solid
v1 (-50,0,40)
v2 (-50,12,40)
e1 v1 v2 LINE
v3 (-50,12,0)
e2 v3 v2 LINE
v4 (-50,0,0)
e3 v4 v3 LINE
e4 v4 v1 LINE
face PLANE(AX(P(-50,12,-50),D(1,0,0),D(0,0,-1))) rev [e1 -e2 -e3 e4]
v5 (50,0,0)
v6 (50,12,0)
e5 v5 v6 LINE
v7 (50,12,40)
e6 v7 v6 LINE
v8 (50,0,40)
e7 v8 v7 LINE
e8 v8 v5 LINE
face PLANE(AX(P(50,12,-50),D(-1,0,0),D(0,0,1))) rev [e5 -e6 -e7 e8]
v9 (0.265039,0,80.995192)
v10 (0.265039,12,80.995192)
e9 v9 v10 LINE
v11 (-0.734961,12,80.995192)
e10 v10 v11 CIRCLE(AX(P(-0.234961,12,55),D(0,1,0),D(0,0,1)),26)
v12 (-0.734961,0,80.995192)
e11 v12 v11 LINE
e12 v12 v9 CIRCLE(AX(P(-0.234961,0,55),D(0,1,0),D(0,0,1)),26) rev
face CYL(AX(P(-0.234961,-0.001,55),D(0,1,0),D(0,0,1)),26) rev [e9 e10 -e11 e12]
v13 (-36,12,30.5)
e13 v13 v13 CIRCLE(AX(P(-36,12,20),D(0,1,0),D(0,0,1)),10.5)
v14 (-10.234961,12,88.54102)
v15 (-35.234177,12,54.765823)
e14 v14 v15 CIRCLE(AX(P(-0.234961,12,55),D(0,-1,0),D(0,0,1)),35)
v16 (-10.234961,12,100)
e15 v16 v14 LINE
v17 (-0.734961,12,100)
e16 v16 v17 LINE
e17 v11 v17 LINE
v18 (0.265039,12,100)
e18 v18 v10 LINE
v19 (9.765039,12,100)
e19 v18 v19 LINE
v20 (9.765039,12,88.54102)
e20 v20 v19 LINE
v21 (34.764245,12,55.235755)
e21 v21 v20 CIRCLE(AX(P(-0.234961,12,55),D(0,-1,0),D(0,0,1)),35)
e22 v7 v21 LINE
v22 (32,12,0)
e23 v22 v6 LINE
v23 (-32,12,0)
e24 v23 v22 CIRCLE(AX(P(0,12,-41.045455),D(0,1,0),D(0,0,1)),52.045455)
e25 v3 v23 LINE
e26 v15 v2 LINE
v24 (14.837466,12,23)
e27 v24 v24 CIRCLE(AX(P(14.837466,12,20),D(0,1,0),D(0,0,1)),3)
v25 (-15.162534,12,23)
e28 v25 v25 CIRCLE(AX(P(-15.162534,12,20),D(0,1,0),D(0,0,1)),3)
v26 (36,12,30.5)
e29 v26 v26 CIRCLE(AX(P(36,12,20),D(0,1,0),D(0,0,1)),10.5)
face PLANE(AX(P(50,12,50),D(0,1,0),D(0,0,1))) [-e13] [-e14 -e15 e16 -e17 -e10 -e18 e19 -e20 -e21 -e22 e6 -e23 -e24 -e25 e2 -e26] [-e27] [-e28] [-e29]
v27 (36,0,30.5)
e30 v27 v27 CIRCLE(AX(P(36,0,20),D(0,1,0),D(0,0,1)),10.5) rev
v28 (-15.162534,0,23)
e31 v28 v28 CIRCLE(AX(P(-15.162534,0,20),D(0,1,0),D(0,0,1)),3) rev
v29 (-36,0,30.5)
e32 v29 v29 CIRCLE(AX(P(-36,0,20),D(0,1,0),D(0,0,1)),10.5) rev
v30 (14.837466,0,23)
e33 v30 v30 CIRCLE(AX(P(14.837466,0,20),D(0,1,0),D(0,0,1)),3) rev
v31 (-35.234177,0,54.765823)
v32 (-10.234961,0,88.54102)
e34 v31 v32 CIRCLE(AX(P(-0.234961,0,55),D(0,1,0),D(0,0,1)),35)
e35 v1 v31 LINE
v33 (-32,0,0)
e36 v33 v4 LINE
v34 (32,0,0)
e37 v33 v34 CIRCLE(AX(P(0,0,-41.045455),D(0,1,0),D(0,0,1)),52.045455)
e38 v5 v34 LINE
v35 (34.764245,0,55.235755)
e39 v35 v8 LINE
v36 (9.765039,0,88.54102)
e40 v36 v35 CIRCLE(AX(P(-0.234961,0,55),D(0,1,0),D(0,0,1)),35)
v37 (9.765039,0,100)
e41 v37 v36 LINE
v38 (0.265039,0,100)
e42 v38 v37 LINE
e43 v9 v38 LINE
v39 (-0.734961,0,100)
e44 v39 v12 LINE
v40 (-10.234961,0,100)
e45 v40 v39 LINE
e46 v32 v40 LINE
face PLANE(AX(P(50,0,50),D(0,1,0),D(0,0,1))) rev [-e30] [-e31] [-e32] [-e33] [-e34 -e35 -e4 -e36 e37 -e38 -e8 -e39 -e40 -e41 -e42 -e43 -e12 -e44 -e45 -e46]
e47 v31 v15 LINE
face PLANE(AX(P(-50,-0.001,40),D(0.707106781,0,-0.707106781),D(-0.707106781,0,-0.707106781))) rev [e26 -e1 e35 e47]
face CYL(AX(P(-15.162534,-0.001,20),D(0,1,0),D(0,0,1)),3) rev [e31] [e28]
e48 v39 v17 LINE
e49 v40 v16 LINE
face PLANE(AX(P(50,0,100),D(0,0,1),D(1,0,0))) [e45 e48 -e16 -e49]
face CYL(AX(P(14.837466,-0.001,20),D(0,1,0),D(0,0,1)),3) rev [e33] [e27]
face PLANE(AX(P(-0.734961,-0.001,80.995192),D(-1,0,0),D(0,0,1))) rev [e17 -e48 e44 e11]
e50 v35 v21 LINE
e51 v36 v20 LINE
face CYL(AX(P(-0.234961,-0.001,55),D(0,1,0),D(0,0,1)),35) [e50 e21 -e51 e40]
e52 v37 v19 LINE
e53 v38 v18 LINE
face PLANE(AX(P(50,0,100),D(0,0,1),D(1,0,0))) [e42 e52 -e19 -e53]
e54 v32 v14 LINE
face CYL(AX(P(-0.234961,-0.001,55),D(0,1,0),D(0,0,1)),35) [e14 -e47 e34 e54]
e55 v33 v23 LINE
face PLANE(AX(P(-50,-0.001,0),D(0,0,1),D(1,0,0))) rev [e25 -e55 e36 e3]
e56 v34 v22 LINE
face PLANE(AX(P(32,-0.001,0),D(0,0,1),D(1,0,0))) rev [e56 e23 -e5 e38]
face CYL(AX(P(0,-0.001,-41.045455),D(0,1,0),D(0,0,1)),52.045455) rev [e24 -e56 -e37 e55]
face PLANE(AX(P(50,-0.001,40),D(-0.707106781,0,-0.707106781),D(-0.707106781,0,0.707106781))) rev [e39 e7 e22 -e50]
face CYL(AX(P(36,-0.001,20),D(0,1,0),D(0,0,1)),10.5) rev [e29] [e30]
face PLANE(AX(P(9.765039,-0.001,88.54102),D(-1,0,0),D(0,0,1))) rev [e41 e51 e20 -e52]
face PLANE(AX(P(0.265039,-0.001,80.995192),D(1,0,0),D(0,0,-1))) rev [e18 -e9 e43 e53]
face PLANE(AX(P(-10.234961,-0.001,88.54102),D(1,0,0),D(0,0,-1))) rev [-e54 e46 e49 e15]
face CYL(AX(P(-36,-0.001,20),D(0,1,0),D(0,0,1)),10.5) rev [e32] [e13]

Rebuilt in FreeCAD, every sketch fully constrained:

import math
import FreeCAD as App
import Part
import Sketcher
from FreeCAD import Vector
Q = App.Units.Quantity


def add_polygon(sketch, points):
    """Adds a closed chain of lines whose ends are joined by coincident constraints."""
    first, n = sketch.GeometryCount, len(points)
    for a, b in zip(points, points[1:] + points[:1]):
        sketch.addGeometry(Part.LineSegment(App.Vector(*a, 0), App.Vector(*b, 0)), False)
    for i in range(n):
        sketch.addConstraint(Sketcher.Constraint("Coincident", first + i, 2, first + (i + 1) % n, 1))

doc = App.newDocument("Part")
body = doc.addObject("PartDesign::Body", "Body")

sketch1 = doc.addObject("Sketcher::SketchObject", "Sketch")
body.addObject(sketch1)
sketch1.AttachmentSupport = (doc.XZ_Plane, [""])
sketch1.MapMode = "FlatFace"
add_polygon(sketch1, [(-50, -50), (-50, 50), (50, 50), (50, -50)])
sketch1.addGeometry(Part.Circle(Vector(0, 0, 0), Vector(0, 0, 1), 11), False)
sketch1.addConstraint(Sketcher.Constraint("Vertical", 0))
sketch1.addConstraint(Sketcher.Constraint("Horizontal", 1))
sketch1.addConstraint(Sketcher.Constraint("Vertical", 2))
sketch1.addConstraint(Sketcher.Constraint("Horizontal", 3))
sketch1.addConstraint(Sketcher.Constraint("Coincident", 4, 3, -1, 1))
sketch1.addConstraint(Sketcher.Constraint("Symmetric", 0, 2, 2, 2, -1, 1))
sketch1.addConstraint(Sketcher.Constraint("Equal", 3, 0))
sketch1.addConstraint(Sketcher.Constraint("Diameter", 4, Q("22 mm")))
sketch1.addConstraint(Sketcher.Constraint("DistanceX", 1, 1, 1, 2, Q("100 mm")))
pad1 = doc.addObject("PartDesign::Pad", "Pad")
body.addObject(pad1)
pad1.Profile = sketch1
pad1.Length = 12
pad1.Reversed = True

sketch2 = doc.addObject("Sketcher::SketchObject", "Sketch001")
body.addObject(sketch2)
sketch2.AttachmentSupport = (doc.XZ_Plane, [""])
sketch2.MapMode = "FlatFace"
sketch2.AttachmentOffset = App.Placement(Vector(0, 0, -12), App.Rotation())
add_polygon(sketch2, [(-50, 50), (-50, 100), (50, 100), (50, 50)])
sketch2.addConstraint(Sketcher.Constraint("Vertical", 0))
sketch2.addConstraint(Sketcher.Constraint("Horizontal", 1))
sketch2.addConstraint(Sketcher.Constraint("Vertical", 2))
sketch2.addConstraint(Sketcher.Constraint("Horizontal", 3))
sketch2.addConstraint(Sketcher.Constraint("DistanceX", 1, 1, 1, 2, Q("100 mm")))
sketch2.addConstraint(Sketcher.Constraint("DistanceY", 0, 1, 0, 2, Q("50 mm")))
sketch2.addConstraint(Sketcher.Constraint("DistanceX", 0, 2, -1, 1, Q("50 mm")))
sketch2.addConstraint(Sketcher.Constraint("DistanceY", -1, 1, 0, 2, Q("100 mm")))
pad2 = doc.addObject("PartDesign::Pad", "Pad001")
body.addObject(pad2)
pad2.Profile = sketch2
pad2.Length = 12

sketch3 = doc.addObject("Sketcher::SketchObject", "Sketch002")
body.addObject(sketch3)
sketch3.AttachmentSupport = (doc.XZ_Plane, [""])
sketch3.MapMode = "FlatFace"
sketch3.AttachmentOffset = App.Placement(Vector(0, 0, -12), App.Rotation())
sketch3.addGeometry(Part.Circle(Vector(-36, 20, 0), Vector(0, 0, 1), 10), False)
sketch3.addConstraint(Sketcher.Constraint("Diameter", 0, Q("21 mm")))
sketch3.addConstraint(Sketcher.Constraint("DistanceX", 0, 3, -1, 1, Q("36 mm")))
sketch3.addConstraint(Sketcher.Constraint("DistanceY", -1, 1, 0, 3, Q("20 mm")))
pocket1 = doc.addObject("PartDesign::Pocket", "Pocket")
body.addObject(pocket1)
pocket1.Profile = sketch3
pocket1.Type = "UpToFirst"
pocket1.Reversed = True

sketch4 = doc.addObject("Sketcher::SketchObject", "Sketch003")
body.addObject(sketch4)
sketch4.AttachmentSupport = (doc.XZ_Plane, [""])
sketch4.MapMode = "FlatFace"
sketch4.AttachmentOffset = App.Placement(Vector(0, 0, -12), App.Rotation())
sketch4.addGeometry(Part.Circle(Vector(36, 20, 0), Vector(0, 0, 1), 10), False)
sketch4.addConstraint(Sketcher.Constraint("Diameter", 0, Q("21 mm")))
sketch4.addConstraint(Sketcher.Constraint("DistanceX", -1, 1, 0, 3, Q("36 mm")))
sketch4.addConstraint(Sketcher.Constraint("DistanceY", -1, 1, 0, 3, Q("20 mm")))
pocket2 = doc.addObject("PartDesign::Pocket", "Pocket001")
body.addObject(pocket2)
pocket2.Profile = sketch4
pocket2.Type = "UpToFirst"
pocket2.Reversed = True

sketch5 = doc.addObject("Sketcher::SketchObject", "Sketch004")
body.addObject(sketch5)
sketch5.AttachmentSupport = (doc.XZ_Plane, [""])
sketch5.MapMode = "FlatFace"
sketch5.AttachmentOffset = App.Placement(Vector(0, 0, -12), App.Rotation())
add_polygon(sketch5, [(-50, 0), (-32, 0), (-32, -18), (32, -18), (32, 0), (50, 0), (50, -50), (-50, -50)])
sketch5.addConstraint(Sketcher.Constraint("Horizontal", 0))
sketch5.addConstraint(Sketcher.Constraint("Vertical", 1))
sketch5.addConstraint(Sketcher.Constraint("Horizontal", 2))
sketch5.addConstraint(Sketcher.Constraint("Vertical", 3))
sketch5.addConstraint(Sketcher.Constraint("Horizontal", 4))
sketch5.addConstraint(Sketcher.Constraint("Vertical", 5))
sketch5.addConstraint(Sketcher.Constraint("Horizontal", 6))
sketch5.addConstraint(Sketcher.Constraint("Vertical", 7))
sketch5.addConstraint(Sketcher.Constraint("Symmetric", 0, 2, 3, 2, -1, 1))
sketch5.addConstraint(Sketcher.Constraint("Symmetric", 4, 2, 7, 2, -2))
sketch5.addConstraint(Sketcher.Constraint("Equal", 4, 1))
sketch5.addConstraint(Sketcher.Constraint("DistanceX", 0, 1, 0, 2, Q("18 mm")))
sketch5.addConstraint(Sketcher.Constraint("DistanceX", 2, 1, 2, 2, Q("64 mm")))
sketch5.addConstraint(Sketcher.Constraint("DistanceY", 5, 2, 5, 1, Q("50 mm")))
pocket3 = doc.addObject("PartDesign::Pocket", "Pocket002")
body.addObject(pocket3)
pocket3.Profile = sketch5
pocket3.Type = "UpToFirst"
pocket3.Reversed = True

sketch6 = doc.addObject("Sketcher::SketchObject", "Sketch005")
body.addObject(sketch6)
sketch6.AttachmentSupport = (doc.XZ_Plane, [""])
sketch6.MapMode = "FlatFace"
sketch6.AttachmentOffset = App.Placement(Vector(0, 0, -12), App.Rotation())
sketch6.addGeometry(Part.Circle(Vector(0, 55, 0), Vector(0, 0, 1), 26), False)
sketch6.addConstraint(Sketcher.Constraint("Diameter", 0, Q("52 mm")))
sketch6.addConstraint(Sketcher.Constraint("DistanceY", -1, 1, 0, 3, Q("55 mm")))
sketch6.addConstraint(Sketcher.Constraint("DistanceX", 0, 3, -1, 1, Q("0.234961 mm")))
pocket4 = doc.addObject("PartDesign::Pocket", "Pocket003")
body.addObject(pocket4)
pocket4.Profile = sketch6
pocket4.Type = "UpToFirst"
pocket4.Reversed = True

sketch7 = doc.addObject("Sketcher::SketchObject", "Sketch006")
body.addObject(sketch7)
sketch7.AttachmentSupport = (doc.XZ_Plane, [""])
sketch7.MapMode = "FlatFace"
sketch7.AttachmentOffset = App.Placement(Vector(0, 0, -12), App.Rotation())
sketch7.addGeometry(Part.LineSegment(Vector(-10, 100, 0), Vector(-10, 89, 0)), False)
sketch7.addGeometry(Part.ArcOfCircle(Part.Circle(Vector(0, 55, 0), Vector(0, 0, 1), 35), math.radians(107), math.radians(180)), False)
sketch7.addGeometry(Part.LineSegment(Vector(-35, 55, 0), Vector(-50, 40, 0)), False)
sketch7.addGeometry(Part.LineSegment(Vector(-50, 40, 0), Vector(-50, 100, 0)), False)
sketch7.addGeometry(Part.LineSegment(Vector(-50, 100, 0), Vector(-10, 100, 0)), False)
sketch7.addConstraint(Sketcher.Constraint("Coincident", 0, 2, 1, 1))
sketch7.addConstraint(Sketcher.Constraint("Coincident", 1, 2, 2, 1))
sketch7.addConstraint(Sketcher.Constraint("Coincident", 2, 2, 3, 1))
sketch7.addConstraint(Sketcher.Constraint("Coincident", 3, 2, 4, 1))
sketch7.addConstraint(Sketcher.Constraint("Coincident", 4, 2, 0, 1))
sketch7.addConstraint(Sketcher.Constraint("Vertical", 0))
sketch7.addConstraint(Sketcher.Constraint("Vertical", 3))
sketch7.addConstraint(Sketcher.Constraint("Horizontal", 4))
sketch7.addConstraint(Sketcher.Constraint("Radius", 1, Q("35 mm")))
sketch7.addConstraint(Sketcher.Constraint("DistanceY", 3, 1, 3, 2, Q("60 mm")))
sketch7.addConstraint(Sketcher.Constraint("Angle", 2, Q("-135 deg")))
sketch7.addConstraint(Sketcher.Constraint("DistanceY", -1, 1, 1, 3, Q("55 mm")))
sketch7.addConstraint(Sketcher.Constraint("DistanceX", 2, 2, -1, 1, Q("50 mm")))
sketch7.addConstraint(Sketcher.Constraint("DistanceY", -1, 1, 2, 2, Q("40 mm")))
sketch7.addConstraint(Sketcher.Constraint("DistanceX", 0, 2, 1, 3, Q("10 mm")))
sketch7.addConstraint(Sketcher.Constraint("DistanceX", 4, 1, 4, 2, Q("39.765039 mm")))
pocket5 = doc.addObject("PartDesign::Pocket", "Pocket004")
body.addObject(pocket5)
pocket5.Profile = sketch7
pocket5.Type = "UpToFirst"
pocket5.Reversed = True

sketch8 = doc.addObject("Sketcher::SketchObject", "Sketch007")
body.addObject(sketch8)
sketch8.AttachmentSupport = (doc.XZ_Plane, [""])
sketch8.MapMode = "FlatFace"
sketch8.AttachmentOffset = App.Placement(Vector(0, 0, -12), App.Rotation())
sketch8.addGeometry(Part.LineSegment(Vector(10, 89, 0), Vector(10, 100, 0)), False)
sketch8.addGeometry(Part.LineSegment(Vector(10, 100, 0), Vector(50, 100, 0)), False)
sketch8.addGeometry(Part.LineSegment(Vector(50, 100, 0), Vector(50, 40, 0)), False)
sketch8.addGeometry(Part.LineSegment(Vector(50, 40, 0), Vector(35, 55, 0)), False)
sketch8.addGeometry(Part.ArcOfCircle(Part.Circle(Vector(0, 55, 0), Vector(0, 0, 1), 35), math.radians(0), math.radians(73)), False)
sketch8.addConstraint(Sketcher.Constraint("Coincident", 0, 2, 1, 1))
sketch8.addConstraint(Sketcher.Constraint("Coincident", 1, 2, 2, 1))
sketch8.addConstraint(Sketcher.Constraint("Coincident", 2, 2, 3, 1))
sketch8.addConstraint(Sketcher.Constraint("Coincident", 3, 2, 4, 1))
sketch8.addConstraint(Sketcher.Constraint("Coincident", 4, 2, 0, 1))
sketch8.addConstraint(Sketcher.Constraint("Vertical", 0))
sketch8.addConstraint(Sketcher.Constraint("Horizontal", 1))
sketch8.addConstraint(Sketcher.Constraint("Vertical", 2))
sketch8.addConstraint(Sketcher.Constraint("Radius", 4, Q("35 mm")))
sketch8.addConstraint(Sketcher.Constraint("DistanceY", 2, 2, 2, 1, Q("60 mm")))
sketch8.addConstraint(Sketcher.Constraint("Angle", 3, Q("135 deg")))
sketch8.addConstraint(Sketcher.Constraint("DistanceY", -1, 1, 4, 3, Q("55 mm")))
sketch8.addConstraint(Sketcher.Constraint("DistanceY", -1, 1, 0, 2, Q("100 mm")))
sketch8.addConstraint(Sketcher.Constraint("DistanceX", -1, 1, 1, 2, Q("50 mm")))
sketch8.addConstraint(Sketcher.Constraint("DistanceX", 4, 3, 0, 2, Q("10 mm")))
sketch8.addConstraint(Sketcher.Constraint("DistanceX", 1, 1, 1, 2, Q("40.234961 mm")))
pocket6 = doc.addObject("PartDesign::Pocket", "Pocket005")
body.addObject(pocket6)
pocket6.Profile = sketch8
pocket6.Type = "UpToFirst"
pocket6.Reversed = True

sketch9 = doc.addObject("Sketcher::SketchObject", "Sketch008")
body.addObject(sketch9)
sketch9.AttachmentSupport = (doc.XZ_Plane, [""])
sketch9.MapMode = "FlatFace"
sketch9.AttachmentOffset = App.Placement(Vector(0, 0, -12), App.Rotation())
sketch9.addGeometry(Part.LineSegment(Vector(-0.7, 81, 0), Vector(-0.7, 100, 0)), False)
sketch9.addGeometry(Part.LineSegment(Vector(-0.7, 100, 0), Vector(0.3, 100, 0)), False)
sketch9.addGeometry(Part.LineSegment(Vector(0.3, 100, 0), Vector(0.3, 81, 0)), False)
sketch9.addGeometry(Part.ArcOfCircle(Part.Circle(Vector(-0.2, 55, 0), Vector(0, 0, 1), 26), math.radians(88.9), math.radians(91.1)), False)
sketch9.addConstraint(Sketcher.Constraint("Coincident", 0, 2, 1, 1))
sketch9.addConstraint(Sketcher.Constraint("Coincident", 1, 2, 2, 1))
sketch9.addConstraint(Sketcher.Constraint("Coincident", 2, 2, 3, 1))
sketch9.addConstraint(Sketcher.Constraint("Coincident", 3, 2, 0, 1))
sketch9.addConstraint(Sketcher.Constraint("Vertical", 0))
sketch9.addConstraint(Sketcher.Constraint("Horizontal", 1))
sketch9.addConstraint(Sketcher.Constraint("Vertical", 2))
sketch9.addConstraint(Sketcher.Constraint("Horizontal", 2, 2, 3, 2))
sketch9.addConstraint(Sketcher.Constraint("Radius", 3, Q("25.999999 mm")))
sketch9.addConstraint(Sketcher.Constraint("DistanceX", 1, 1, 1, 2, Q("1 mm")))
sketch9.addConstraint(Sketcher.Constraint("DistanceY", -1, 1, 3, 3, Q("55.000001 mm")))
sketch9.addConstraint(Sketcher.Constraint("DistanceY", -1, 1, 0, 2, Q("100 mm")))
sketch9.addConstraint(Sketcher.Constraint("DistanceX", 3, 3, -1, 1, Q("0.234961 mm")))
pocket7 = doc.addObject("PartDesign::Pocket", "Pocket006")
body.addObject(pocket7)
pocket7.Profile = sketch9
pocket7.Type = "UpToFirst"
pocket7.Reversed = True

sketch10 = doc.addObject("Sketcher::SketchObject", "Sketch009")
body.addObject(sketch10)
sketch10.AttachmentSupport = (doc.XZ_Plane, [""])
sketch10.MapMode = "FlatFace"
sketch10.AttachmentOffset = App.Placement(Vector(0, 0, -12), App.Rotation())
sketch10.addGeometry(Part.Circle(Vector(0, -41, 0), Vector(0, 0, 1), 52), False)
sketch10.addConstraint(Sketcher.Constraint("PointOnObject", 0, 3, -2))
sketch10.addConstraint(Sketcher.Constraint("Diameter", 0, Q("104.090909 mm")))
sketch10.addConstraint(Sketcher.Constraint("DistanceY", 0, 3, -1, 1, Q("41.045455 mm")))
pocket8 = doc.addObject("PartDesign::Pocket", "Pocket007")
body.addObject(pocket8)
pocket8.Profile = sketch10
pocket8.Length = 12
pocket8.Reversed = True

sketch11 = doc.addObject("Sketcher::SketchObject", "Sketch010")
body.addObject(sketch11)
sketch11.AttachmentSupport = (doc.XZ_Plane, [""])
sketch11.MapMode = "FlatFace"
sketch11.AttachmentOffset = App.Placement(Vector(0, 0, -12), App.Rotation())
sketch11.addGeometry(Part.Circle(Vector(-15.2, 20, 0), Vector(0, 0, 1), 3), False)
sketch11.addConstraint(Sketcher.Constraint("Diameter", 0, Q("6 mm")))
sketch11.addConstraint(Sketcher.Constraint("DistanceY", -1, 1, 0, 3, Q("20 mm")))
sketch11.addConstraint(Sketcher.Constraint("DistanceX", 0, 3, -1, 1, Q("15.162534 mm")))
pocket9 = doc.addObject("PartDesign::Pocket", "Pocket008")
body.addObject(pocket9)
pocket9.Profile = sketch11
pocket9.Type = "UpToFirst"
pocket9.Reversed = True

sketch12 = doc.addObject("Sketcher::SketchObject", "Sketch011")
body.addObject(sketch12)
sketch12.AttachmentSupport = (doc.XZ_Plane, [""])
sketch12.MapMode = "FlatFace"
sketch12.AttachmentOffset = App.Placement(Vector(0, 0, -12), App.Rotation())
sketch12.addGeometry(Part.Circle(Vector(14.8, 20, 0), Vector(0, 0, 1), 3), False)
sketch12.addConstraint(Sketcher.Constraint("Diameter", 0, Q("6 mm")))
sketch12.addConstraint(Sketcher.Constraint("DistanceY", -1, 1, 0, 3, Q("20 mm")))
sketch12.addConstraint(Sketcher.Constraint("DistanceX", -1, 1, 0, 3, Q("14.837466 mm")))
pocket10 = doc.addObject("PartDesign::Pocket", "Pocket009")
body.addObject(pocket10)
pocket10.Profile = sketch12
pocket10.Type = "UpToFirst"
pocket10.Reversed = True

doc.recompute()
